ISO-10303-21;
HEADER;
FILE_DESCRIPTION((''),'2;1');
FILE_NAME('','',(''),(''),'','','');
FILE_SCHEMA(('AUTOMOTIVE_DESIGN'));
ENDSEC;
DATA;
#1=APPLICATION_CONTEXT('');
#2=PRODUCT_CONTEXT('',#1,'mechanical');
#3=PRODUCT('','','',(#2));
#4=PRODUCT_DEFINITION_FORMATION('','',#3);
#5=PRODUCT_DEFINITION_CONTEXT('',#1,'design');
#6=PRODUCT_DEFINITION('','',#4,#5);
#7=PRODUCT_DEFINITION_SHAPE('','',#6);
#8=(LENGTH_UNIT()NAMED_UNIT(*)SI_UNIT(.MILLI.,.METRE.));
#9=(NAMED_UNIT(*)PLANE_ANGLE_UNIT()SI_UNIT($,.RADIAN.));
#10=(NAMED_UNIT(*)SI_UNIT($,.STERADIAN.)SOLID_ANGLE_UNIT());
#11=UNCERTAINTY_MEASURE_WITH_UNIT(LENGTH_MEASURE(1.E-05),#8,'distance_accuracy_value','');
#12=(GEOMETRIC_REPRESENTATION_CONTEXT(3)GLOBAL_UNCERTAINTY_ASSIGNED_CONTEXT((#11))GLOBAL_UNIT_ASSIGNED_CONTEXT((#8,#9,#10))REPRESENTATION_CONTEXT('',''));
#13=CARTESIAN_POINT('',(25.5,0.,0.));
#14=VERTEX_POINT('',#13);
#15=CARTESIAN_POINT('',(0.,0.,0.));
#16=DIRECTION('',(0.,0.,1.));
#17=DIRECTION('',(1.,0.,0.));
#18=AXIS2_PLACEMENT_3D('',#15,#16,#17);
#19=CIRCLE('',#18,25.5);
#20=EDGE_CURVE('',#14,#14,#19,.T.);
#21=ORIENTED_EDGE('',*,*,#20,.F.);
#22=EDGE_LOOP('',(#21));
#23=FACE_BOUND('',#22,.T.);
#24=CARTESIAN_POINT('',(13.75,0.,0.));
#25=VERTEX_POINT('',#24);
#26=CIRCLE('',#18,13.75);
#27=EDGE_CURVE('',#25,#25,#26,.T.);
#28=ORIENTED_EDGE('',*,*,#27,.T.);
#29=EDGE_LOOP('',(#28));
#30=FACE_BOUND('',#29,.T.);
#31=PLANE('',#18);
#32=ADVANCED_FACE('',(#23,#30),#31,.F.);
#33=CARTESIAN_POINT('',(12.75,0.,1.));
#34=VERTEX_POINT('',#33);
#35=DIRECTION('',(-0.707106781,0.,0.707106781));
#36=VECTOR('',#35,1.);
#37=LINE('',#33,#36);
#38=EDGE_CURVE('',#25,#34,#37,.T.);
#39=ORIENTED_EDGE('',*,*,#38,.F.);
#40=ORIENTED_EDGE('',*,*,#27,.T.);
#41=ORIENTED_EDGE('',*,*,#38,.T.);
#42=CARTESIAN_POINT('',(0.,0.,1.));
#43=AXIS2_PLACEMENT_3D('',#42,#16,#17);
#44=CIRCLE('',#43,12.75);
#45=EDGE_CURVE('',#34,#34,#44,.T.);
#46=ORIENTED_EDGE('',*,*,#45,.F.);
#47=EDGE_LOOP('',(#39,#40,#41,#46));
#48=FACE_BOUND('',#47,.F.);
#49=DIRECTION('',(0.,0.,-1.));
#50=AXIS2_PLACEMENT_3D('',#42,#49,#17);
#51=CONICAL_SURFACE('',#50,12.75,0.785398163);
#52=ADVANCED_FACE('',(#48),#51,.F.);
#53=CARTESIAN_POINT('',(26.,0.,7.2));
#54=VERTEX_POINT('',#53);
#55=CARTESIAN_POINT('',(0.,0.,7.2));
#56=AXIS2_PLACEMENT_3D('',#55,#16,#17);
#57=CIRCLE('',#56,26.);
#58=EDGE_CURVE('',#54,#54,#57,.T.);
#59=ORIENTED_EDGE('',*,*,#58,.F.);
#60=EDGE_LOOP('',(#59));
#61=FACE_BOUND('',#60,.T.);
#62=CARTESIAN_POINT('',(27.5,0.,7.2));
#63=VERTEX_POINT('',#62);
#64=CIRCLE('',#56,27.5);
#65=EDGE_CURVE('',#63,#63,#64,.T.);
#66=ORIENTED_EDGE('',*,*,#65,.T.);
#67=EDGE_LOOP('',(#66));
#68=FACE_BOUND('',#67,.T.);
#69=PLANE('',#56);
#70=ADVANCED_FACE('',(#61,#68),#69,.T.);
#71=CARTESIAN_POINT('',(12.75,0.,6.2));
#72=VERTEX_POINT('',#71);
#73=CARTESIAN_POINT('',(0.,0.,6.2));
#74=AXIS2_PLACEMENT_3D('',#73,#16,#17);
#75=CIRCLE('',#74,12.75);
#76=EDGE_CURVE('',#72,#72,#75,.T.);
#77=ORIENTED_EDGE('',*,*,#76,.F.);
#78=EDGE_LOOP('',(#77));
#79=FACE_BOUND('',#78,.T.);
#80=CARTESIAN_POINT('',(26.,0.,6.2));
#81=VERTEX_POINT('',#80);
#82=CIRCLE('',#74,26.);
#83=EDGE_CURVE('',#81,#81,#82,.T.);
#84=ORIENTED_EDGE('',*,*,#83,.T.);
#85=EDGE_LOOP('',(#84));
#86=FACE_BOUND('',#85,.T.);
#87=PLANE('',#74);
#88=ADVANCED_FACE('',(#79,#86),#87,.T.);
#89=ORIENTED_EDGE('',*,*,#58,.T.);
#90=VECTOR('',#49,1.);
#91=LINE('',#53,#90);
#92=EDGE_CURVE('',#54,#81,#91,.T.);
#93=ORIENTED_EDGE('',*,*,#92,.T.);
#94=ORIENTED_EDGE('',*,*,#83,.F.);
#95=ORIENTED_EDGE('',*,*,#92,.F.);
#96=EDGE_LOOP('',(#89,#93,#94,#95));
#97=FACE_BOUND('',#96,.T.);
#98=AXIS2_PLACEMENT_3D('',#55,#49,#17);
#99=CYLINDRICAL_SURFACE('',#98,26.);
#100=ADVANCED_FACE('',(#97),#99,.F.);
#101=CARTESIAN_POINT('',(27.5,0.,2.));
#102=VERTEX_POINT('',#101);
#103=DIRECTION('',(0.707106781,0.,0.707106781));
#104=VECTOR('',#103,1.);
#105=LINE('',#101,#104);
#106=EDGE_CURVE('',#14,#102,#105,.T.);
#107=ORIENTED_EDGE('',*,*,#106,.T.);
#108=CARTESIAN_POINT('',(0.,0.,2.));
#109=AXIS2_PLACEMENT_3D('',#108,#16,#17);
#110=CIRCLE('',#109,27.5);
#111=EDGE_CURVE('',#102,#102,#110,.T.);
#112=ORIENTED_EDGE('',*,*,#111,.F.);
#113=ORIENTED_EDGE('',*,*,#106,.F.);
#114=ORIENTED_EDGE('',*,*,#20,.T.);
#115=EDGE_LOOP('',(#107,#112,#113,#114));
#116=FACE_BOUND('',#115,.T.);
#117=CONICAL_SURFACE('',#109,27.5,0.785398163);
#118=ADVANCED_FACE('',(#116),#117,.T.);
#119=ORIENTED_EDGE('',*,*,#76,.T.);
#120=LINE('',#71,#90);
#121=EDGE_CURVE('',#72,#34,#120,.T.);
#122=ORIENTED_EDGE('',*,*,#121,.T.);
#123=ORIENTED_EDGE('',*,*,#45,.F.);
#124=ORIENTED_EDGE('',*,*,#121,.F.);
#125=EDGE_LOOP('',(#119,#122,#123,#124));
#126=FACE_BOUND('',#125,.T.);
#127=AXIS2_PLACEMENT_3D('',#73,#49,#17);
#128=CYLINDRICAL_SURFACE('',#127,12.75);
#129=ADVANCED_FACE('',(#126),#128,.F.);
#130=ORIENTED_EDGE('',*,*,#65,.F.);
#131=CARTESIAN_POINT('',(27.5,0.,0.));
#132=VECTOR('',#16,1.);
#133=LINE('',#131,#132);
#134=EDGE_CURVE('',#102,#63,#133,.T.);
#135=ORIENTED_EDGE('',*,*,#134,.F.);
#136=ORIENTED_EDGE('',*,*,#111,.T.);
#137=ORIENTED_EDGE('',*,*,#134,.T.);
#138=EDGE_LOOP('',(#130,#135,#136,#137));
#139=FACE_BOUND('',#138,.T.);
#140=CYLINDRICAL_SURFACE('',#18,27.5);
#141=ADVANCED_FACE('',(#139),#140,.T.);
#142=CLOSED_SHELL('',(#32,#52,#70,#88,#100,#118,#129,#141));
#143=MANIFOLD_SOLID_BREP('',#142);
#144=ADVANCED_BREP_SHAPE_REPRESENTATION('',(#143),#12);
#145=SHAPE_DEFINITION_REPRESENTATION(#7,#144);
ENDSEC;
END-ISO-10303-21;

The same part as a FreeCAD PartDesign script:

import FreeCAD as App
import Part
import Sketcher
from FreeCAD import Vector


def edges_at(feature, points):
    """Names of the edges that pass closest to the given points."""
    edges = feature.Shape.Edges
    near = lambda p: min(range(len(edges)), key=lambda i: edges[i].distToShape(Part.Vertex(*p))[0])
    return sorted({f"Edge{near(p) + 1}" for p in points})

doc = App.newDocument("Part")
body = doc.addObject("PartDesign::Body", "Body")

# Sketch on XZ plane
sketch1 = doc.addObject("Sketcher::SketchObject", "Sketch")
body.addObject(sketch1)
sketch1.AttachmentSupport = (doc.XZ_Plane, [""])
sketch1.MapMode = "FlatFace"
sketch1.addGeometry([
    Part.LineSegment(Vector(12.75, 6.2, 0), Vector(12.75, 0, 0)),  # 0
    Part.LineSegment(Vector(12.75, 0, 0), Vector(27.5, 0, 0)),  # 1
    Part.LineSegment(Vector(27.5, 0, 0), Vector(27.5, 7.2, 0)),  # 2
    Part.LineSegment(Vector(27.5, 7.2, 0), Vector(26, 7.2, 0)),  # 3
    Part.LineSegment(Vector(26, 7.2, 0), Vector(26, 6.2, 0)),  # 4
    Part.LineSegment(Vector(26, 6.2, 0), Vector(12.75, 6.2, 0)),  # 5
], False)
sketch1.addConstraint([
    Sketcher.Constraint("Coincident", 0, 2, 1, 1),
    Sketcher.Constraint("Coincident", 1, 2, 2, 1),
    Sketcher.Constraint("Coincident", 2, 2, 3, 1),
    Sketcher.Constraint("Coincident", 3, 2, 4, 1),
    Sketcher.Constraint("Coincident", 4, 2, 5, 1),
    Sketcher.Constraint("Coincident", 5, 2, 0, 1),
    Sketcher.Constraint("Vertical", 0),
    Sketcher.Constraint("Horizontal", 1),
    Sketcher.Constraint("Vertical", 2),
    Sketcher.Constraint("Horizontal", 3),
    Sketcher.Constraint("Vertical", 4),
    Sketcher.Constraint("Horizontal", 5),
    Sketcher.Constraint("PointOnObject", 0, 2, -1),
    Sketcher.Constraint("DistanceY", 4, 2, 4, 1, 1.0),
    Sketcher.Constraint("DistanceX", 3, 2, 3, 1, 1.5),
    Sketcher.Constraint("DistanceY", 0, 2, 0, 1, 6.2),
    Sketcher.Constraint("DistanceX", -1, 1, 3, 2, 26.0),
    Sketcher.Constraint("DistanceX", 1, 1, 1, 2, 14.75),
])
revolution = doc.addObject("PartDesign::Revolution", "Revolution")
body.addObject(revolution)
revolution.Profile = sketch1
revolution.ReferenceAxis = (sketch1, ["V_Axis"])
revolution.Angle = 360
doc.recompute()

chamfer = doc.addObject("PartDesign::Chamfer", "Chamfer")
body.addObject(chamfer)
chamfer.Base = (revolution, edges_at(revolution, [(-27.5, 0, 0)]))
chamfer.Size = 2
doc.recompute()

chamfer2 = doc.addObject("PartDesign::Chamfer", "Chamfer001")
body.addObject(chamfer2)
chamfer2.Base = (chamfer, edges_at(chamfer, [(-12.75, 0, 0)]))
chamfer2.Size = 1

doc.recompute()
